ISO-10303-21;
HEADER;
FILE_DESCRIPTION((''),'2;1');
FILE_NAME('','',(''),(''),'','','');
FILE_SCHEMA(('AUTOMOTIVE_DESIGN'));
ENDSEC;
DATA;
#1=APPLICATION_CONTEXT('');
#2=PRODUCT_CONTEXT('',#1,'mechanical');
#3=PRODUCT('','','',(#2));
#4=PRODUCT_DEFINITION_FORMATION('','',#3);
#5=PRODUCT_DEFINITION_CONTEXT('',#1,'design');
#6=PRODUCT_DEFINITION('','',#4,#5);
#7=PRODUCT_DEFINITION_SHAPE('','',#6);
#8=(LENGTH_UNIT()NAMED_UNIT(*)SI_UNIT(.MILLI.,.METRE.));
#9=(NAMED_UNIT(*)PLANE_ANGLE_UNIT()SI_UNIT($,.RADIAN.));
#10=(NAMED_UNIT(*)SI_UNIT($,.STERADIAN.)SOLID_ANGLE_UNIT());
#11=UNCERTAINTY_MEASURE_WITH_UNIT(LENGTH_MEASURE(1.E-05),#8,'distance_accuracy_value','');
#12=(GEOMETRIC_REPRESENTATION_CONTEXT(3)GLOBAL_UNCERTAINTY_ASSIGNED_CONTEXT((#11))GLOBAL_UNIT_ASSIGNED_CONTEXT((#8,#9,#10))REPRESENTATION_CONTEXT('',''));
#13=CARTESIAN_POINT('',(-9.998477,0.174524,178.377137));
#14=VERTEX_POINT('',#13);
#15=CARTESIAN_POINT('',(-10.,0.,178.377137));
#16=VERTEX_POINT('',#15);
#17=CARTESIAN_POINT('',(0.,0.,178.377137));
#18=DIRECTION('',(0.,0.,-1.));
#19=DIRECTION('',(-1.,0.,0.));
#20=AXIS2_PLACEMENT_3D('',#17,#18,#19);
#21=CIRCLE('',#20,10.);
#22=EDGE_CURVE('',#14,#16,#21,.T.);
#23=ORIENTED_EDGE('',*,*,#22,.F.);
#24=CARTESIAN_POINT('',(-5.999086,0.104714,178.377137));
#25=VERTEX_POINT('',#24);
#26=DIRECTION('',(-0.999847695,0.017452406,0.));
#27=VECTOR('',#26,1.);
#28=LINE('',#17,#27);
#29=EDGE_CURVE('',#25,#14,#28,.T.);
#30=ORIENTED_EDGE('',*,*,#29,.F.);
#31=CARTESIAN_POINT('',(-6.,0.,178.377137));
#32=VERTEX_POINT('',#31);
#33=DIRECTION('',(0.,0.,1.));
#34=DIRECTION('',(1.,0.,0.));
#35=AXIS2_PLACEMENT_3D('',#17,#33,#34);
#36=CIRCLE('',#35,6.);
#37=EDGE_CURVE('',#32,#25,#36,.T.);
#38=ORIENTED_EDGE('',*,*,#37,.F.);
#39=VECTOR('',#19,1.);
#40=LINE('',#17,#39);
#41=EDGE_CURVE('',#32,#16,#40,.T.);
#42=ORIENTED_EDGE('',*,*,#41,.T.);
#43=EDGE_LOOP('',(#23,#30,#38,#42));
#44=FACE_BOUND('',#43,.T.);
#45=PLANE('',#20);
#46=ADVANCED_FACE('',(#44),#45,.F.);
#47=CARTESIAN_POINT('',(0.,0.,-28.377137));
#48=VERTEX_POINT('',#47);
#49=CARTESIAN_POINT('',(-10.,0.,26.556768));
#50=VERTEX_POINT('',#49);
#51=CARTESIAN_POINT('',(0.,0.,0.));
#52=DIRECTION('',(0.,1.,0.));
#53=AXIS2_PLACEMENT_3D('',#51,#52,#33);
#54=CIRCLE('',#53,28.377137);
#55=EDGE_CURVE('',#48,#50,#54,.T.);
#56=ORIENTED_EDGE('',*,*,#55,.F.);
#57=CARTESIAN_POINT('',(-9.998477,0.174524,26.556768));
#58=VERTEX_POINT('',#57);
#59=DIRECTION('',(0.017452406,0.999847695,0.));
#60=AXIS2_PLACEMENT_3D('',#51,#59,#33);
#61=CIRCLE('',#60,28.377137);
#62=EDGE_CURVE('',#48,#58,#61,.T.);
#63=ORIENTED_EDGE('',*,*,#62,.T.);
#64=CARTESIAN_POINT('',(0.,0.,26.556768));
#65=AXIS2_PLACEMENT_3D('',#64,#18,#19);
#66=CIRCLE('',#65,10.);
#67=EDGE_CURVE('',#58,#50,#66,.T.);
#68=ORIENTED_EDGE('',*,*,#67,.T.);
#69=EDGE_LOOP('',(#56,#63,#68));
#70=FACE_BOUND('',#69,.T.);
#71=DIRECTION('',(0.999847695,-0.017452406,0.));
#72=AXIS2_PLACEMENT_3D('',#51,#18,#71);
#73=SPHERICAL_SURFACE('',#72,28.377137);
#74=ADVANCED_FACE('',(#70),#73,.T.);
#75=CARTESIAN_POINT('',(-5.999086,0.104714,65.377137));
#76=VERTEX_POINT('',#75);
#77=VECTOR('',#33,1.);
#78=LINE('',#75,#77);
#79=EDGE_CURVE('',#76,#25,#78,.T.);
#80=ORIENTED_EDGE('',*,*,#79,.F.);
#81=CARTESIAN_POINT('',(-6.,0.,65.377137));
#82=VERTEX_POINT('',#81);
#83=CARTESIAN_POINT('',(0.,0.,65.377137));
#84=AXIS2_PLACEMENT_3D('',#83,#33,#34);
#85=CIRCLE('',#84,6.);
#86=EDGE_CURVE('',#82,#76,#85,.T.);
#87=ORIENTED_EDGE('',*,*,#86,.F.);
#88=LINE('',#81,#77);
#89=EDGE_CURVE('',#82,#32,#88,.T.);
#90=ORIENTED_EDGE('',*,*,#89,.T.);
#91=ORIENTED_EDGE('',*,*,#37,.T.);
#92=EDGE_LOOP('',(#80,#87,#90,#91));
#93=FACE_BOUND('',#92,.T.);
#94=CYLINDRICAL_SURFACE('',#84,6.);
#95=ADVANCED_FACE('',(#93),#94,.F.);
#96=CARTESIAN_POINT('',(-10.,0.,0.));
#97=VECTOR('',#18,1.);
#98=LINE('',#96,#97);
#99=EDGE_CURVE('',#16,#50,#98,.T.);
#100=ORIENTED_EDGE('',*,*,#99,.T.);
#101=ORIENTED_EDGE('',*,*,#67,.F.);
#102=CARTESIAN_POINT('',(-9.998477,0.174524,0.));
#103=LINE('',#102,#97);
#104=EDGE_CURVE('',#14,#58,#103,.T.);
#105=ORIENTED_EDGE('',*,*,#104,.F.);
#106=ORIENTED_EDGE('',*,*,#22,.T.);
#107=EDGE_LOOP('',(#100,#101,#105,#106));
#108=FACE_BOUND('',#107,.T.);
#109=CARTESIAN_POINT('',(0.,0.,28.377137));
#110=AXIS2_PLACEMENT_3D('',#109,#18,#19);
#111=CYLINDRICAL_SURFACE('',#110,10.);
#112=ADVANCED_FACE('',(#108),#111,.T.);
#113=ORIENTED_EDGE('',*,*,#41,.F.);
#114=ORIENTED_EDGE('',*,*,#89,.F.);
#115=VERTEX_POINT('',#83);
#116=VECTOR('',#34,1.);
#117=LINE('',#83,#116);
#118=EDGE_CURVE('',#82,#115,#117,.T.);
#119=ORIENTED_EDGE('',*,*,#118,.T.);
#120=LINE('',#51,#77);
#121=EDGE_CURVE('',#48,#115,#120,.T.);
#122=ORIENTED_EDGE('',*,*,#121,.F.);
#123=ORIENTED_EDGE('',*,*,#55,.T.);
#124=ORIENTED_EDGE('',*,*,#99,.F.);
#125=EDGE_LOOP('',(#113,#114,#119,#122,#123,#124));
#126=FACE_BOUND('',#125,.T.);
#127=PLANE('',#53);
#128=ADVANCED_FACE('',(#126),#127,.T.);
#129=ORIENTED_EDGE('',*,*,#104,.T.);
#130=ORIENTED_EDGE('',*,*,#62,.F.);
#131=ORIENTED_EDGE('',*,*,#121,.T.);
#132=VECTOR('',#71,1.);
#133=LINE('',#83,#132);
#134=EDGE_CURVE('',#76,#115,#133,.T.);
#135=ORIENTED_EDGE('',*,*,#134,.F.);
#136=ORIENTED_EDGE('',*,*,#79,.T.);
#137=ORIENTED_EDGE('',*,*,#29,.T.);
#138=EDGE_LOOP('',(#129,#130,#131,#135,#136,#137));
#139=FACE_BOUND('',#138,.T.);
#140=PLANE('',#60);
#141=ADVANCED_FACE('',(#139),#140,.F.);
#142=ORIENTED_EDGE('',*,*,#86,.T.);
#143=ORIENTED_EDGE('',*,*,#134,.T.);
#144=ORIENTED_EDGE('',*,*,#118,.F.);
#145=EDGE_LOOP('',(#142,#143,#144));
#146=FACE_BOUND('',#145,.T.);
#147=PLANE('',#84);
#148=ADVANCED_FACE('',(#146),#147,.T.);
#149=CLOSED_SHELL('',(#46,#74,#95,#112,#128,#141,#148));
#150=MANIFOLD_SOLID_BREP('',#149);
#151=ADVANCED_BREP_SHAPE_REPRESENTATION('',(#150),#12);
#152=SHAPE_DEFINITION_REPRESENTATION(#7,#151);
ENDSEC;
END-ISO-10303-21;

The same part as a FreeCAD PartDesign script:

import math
import FreeCAD as App
import Part
import Sketcher

V = App.Vector
Q = App.Units.Quantity

doc = App.newDocument("Part")
body = doc.addObject("PartDesign::Body", "Body")

# Sketch on XZ plane
sketch1 = doc.addObject("Sketcher::SketchObject", "Sketch")
body.addObject(sketch1)
sketch1.AttachmentSupport = (doc.XZ_Plane, [""])
sketch1.MapMode = "FlatFace"
sketch1.addGeometry(Part.LineSegment(V(0, 178, 0), V(0, -28, 0)), False)
sketch1.addGeometry(Part.ArcOfCircle(Part.Circle(V(0, 0, 0), V(0, 0, 1), 28), math.radians(111), math.radians(270)), False)
sketch1.addGeometry(Part.LineSegment(V(-10, 27, 0), V(-10, 178, 0)), False)
sketch1.addGeometry(Part.LineSegment(V(-10, 178, 0), V(0, 178, 0)), False)
sketch1.addConstraint(Sketcher.Constraint("Coincident", 0, 2, 1, 2))
sketch1.addConstraint(Sketcher.Constraint("Coincident", 1, 1, 2, 1))
sketch1.addConstraint(Sketcher.Constraint("Coincident", 2, 2, 3, 1))
sketch1.addConstraint(Sketcher.Constraint("Coincident", 3, 2, 0, 1))
sketch1.addConstraint(Sketcher.Constraint("Vertical", 0))
sketch1.addConstraint(Sketcher.Constraint("Vertical", 2))
sketch1.addConstraint(Sketcher.Constraint("Horizontal", 3))
sketch1.addConstraint(Sketcher.Constraint("Coincident", 1, 3, -1, 1))
sketch1.addConstraint(Sketcher.Constraint("PointOnObject", 0, 2, -2))
sketch1.addConstraint(Sketcher.Constraint("DistanceX", 3, 1, 3, 2, Q("10 mm")))
sketch1.addConstraint(Sketcher.Constraint("Radius", 1, Q("28.377137 mm")))
sketch1.addConstraint(Sketcher.Constraint("DistanceY", 2, 1, 2, 2, Q("151.820369 mm")))
revolution = doc.addObject("PartDesign::Revolution", "Revolution")
body.addObject(revolution)
revolution.Profile = sketch1
revolution.ReferenceAxis = (sketch1, ["V_Axis"])
revolution.Angle = 359

# Sketch on XY plane
sketch2 = doc.addObject("Sketcher::SketchObject", "Sketch001")
body.addObject(sketch2)
sketch2.AttachmentSupport = (doc.XY_Plane, [""])
sketch2.MapMode = "FlatFace"
sketch2.AttachmentOffset = App.Placement(V(0, 0, 178.377137), App.Rotation())
sketch2.addGeometry(Part.Circle(V(0, 0, 0), V(0, 0, 1), 6), False)
sketch2.addConstraint(Sketcher.Constraint("Coincident", 0, 3, -1, 1))
sketch2.addConstraint(Sketcher.Constraint("Diameter", 0, Q("12 mm")))
pocket1 = doc.addObject("PartDesign::Pocket", "Pocket")
body.addObject(pocket1)
pocket1.Profile = sketch2
pocket1.Length = 113

doc.recompute()
